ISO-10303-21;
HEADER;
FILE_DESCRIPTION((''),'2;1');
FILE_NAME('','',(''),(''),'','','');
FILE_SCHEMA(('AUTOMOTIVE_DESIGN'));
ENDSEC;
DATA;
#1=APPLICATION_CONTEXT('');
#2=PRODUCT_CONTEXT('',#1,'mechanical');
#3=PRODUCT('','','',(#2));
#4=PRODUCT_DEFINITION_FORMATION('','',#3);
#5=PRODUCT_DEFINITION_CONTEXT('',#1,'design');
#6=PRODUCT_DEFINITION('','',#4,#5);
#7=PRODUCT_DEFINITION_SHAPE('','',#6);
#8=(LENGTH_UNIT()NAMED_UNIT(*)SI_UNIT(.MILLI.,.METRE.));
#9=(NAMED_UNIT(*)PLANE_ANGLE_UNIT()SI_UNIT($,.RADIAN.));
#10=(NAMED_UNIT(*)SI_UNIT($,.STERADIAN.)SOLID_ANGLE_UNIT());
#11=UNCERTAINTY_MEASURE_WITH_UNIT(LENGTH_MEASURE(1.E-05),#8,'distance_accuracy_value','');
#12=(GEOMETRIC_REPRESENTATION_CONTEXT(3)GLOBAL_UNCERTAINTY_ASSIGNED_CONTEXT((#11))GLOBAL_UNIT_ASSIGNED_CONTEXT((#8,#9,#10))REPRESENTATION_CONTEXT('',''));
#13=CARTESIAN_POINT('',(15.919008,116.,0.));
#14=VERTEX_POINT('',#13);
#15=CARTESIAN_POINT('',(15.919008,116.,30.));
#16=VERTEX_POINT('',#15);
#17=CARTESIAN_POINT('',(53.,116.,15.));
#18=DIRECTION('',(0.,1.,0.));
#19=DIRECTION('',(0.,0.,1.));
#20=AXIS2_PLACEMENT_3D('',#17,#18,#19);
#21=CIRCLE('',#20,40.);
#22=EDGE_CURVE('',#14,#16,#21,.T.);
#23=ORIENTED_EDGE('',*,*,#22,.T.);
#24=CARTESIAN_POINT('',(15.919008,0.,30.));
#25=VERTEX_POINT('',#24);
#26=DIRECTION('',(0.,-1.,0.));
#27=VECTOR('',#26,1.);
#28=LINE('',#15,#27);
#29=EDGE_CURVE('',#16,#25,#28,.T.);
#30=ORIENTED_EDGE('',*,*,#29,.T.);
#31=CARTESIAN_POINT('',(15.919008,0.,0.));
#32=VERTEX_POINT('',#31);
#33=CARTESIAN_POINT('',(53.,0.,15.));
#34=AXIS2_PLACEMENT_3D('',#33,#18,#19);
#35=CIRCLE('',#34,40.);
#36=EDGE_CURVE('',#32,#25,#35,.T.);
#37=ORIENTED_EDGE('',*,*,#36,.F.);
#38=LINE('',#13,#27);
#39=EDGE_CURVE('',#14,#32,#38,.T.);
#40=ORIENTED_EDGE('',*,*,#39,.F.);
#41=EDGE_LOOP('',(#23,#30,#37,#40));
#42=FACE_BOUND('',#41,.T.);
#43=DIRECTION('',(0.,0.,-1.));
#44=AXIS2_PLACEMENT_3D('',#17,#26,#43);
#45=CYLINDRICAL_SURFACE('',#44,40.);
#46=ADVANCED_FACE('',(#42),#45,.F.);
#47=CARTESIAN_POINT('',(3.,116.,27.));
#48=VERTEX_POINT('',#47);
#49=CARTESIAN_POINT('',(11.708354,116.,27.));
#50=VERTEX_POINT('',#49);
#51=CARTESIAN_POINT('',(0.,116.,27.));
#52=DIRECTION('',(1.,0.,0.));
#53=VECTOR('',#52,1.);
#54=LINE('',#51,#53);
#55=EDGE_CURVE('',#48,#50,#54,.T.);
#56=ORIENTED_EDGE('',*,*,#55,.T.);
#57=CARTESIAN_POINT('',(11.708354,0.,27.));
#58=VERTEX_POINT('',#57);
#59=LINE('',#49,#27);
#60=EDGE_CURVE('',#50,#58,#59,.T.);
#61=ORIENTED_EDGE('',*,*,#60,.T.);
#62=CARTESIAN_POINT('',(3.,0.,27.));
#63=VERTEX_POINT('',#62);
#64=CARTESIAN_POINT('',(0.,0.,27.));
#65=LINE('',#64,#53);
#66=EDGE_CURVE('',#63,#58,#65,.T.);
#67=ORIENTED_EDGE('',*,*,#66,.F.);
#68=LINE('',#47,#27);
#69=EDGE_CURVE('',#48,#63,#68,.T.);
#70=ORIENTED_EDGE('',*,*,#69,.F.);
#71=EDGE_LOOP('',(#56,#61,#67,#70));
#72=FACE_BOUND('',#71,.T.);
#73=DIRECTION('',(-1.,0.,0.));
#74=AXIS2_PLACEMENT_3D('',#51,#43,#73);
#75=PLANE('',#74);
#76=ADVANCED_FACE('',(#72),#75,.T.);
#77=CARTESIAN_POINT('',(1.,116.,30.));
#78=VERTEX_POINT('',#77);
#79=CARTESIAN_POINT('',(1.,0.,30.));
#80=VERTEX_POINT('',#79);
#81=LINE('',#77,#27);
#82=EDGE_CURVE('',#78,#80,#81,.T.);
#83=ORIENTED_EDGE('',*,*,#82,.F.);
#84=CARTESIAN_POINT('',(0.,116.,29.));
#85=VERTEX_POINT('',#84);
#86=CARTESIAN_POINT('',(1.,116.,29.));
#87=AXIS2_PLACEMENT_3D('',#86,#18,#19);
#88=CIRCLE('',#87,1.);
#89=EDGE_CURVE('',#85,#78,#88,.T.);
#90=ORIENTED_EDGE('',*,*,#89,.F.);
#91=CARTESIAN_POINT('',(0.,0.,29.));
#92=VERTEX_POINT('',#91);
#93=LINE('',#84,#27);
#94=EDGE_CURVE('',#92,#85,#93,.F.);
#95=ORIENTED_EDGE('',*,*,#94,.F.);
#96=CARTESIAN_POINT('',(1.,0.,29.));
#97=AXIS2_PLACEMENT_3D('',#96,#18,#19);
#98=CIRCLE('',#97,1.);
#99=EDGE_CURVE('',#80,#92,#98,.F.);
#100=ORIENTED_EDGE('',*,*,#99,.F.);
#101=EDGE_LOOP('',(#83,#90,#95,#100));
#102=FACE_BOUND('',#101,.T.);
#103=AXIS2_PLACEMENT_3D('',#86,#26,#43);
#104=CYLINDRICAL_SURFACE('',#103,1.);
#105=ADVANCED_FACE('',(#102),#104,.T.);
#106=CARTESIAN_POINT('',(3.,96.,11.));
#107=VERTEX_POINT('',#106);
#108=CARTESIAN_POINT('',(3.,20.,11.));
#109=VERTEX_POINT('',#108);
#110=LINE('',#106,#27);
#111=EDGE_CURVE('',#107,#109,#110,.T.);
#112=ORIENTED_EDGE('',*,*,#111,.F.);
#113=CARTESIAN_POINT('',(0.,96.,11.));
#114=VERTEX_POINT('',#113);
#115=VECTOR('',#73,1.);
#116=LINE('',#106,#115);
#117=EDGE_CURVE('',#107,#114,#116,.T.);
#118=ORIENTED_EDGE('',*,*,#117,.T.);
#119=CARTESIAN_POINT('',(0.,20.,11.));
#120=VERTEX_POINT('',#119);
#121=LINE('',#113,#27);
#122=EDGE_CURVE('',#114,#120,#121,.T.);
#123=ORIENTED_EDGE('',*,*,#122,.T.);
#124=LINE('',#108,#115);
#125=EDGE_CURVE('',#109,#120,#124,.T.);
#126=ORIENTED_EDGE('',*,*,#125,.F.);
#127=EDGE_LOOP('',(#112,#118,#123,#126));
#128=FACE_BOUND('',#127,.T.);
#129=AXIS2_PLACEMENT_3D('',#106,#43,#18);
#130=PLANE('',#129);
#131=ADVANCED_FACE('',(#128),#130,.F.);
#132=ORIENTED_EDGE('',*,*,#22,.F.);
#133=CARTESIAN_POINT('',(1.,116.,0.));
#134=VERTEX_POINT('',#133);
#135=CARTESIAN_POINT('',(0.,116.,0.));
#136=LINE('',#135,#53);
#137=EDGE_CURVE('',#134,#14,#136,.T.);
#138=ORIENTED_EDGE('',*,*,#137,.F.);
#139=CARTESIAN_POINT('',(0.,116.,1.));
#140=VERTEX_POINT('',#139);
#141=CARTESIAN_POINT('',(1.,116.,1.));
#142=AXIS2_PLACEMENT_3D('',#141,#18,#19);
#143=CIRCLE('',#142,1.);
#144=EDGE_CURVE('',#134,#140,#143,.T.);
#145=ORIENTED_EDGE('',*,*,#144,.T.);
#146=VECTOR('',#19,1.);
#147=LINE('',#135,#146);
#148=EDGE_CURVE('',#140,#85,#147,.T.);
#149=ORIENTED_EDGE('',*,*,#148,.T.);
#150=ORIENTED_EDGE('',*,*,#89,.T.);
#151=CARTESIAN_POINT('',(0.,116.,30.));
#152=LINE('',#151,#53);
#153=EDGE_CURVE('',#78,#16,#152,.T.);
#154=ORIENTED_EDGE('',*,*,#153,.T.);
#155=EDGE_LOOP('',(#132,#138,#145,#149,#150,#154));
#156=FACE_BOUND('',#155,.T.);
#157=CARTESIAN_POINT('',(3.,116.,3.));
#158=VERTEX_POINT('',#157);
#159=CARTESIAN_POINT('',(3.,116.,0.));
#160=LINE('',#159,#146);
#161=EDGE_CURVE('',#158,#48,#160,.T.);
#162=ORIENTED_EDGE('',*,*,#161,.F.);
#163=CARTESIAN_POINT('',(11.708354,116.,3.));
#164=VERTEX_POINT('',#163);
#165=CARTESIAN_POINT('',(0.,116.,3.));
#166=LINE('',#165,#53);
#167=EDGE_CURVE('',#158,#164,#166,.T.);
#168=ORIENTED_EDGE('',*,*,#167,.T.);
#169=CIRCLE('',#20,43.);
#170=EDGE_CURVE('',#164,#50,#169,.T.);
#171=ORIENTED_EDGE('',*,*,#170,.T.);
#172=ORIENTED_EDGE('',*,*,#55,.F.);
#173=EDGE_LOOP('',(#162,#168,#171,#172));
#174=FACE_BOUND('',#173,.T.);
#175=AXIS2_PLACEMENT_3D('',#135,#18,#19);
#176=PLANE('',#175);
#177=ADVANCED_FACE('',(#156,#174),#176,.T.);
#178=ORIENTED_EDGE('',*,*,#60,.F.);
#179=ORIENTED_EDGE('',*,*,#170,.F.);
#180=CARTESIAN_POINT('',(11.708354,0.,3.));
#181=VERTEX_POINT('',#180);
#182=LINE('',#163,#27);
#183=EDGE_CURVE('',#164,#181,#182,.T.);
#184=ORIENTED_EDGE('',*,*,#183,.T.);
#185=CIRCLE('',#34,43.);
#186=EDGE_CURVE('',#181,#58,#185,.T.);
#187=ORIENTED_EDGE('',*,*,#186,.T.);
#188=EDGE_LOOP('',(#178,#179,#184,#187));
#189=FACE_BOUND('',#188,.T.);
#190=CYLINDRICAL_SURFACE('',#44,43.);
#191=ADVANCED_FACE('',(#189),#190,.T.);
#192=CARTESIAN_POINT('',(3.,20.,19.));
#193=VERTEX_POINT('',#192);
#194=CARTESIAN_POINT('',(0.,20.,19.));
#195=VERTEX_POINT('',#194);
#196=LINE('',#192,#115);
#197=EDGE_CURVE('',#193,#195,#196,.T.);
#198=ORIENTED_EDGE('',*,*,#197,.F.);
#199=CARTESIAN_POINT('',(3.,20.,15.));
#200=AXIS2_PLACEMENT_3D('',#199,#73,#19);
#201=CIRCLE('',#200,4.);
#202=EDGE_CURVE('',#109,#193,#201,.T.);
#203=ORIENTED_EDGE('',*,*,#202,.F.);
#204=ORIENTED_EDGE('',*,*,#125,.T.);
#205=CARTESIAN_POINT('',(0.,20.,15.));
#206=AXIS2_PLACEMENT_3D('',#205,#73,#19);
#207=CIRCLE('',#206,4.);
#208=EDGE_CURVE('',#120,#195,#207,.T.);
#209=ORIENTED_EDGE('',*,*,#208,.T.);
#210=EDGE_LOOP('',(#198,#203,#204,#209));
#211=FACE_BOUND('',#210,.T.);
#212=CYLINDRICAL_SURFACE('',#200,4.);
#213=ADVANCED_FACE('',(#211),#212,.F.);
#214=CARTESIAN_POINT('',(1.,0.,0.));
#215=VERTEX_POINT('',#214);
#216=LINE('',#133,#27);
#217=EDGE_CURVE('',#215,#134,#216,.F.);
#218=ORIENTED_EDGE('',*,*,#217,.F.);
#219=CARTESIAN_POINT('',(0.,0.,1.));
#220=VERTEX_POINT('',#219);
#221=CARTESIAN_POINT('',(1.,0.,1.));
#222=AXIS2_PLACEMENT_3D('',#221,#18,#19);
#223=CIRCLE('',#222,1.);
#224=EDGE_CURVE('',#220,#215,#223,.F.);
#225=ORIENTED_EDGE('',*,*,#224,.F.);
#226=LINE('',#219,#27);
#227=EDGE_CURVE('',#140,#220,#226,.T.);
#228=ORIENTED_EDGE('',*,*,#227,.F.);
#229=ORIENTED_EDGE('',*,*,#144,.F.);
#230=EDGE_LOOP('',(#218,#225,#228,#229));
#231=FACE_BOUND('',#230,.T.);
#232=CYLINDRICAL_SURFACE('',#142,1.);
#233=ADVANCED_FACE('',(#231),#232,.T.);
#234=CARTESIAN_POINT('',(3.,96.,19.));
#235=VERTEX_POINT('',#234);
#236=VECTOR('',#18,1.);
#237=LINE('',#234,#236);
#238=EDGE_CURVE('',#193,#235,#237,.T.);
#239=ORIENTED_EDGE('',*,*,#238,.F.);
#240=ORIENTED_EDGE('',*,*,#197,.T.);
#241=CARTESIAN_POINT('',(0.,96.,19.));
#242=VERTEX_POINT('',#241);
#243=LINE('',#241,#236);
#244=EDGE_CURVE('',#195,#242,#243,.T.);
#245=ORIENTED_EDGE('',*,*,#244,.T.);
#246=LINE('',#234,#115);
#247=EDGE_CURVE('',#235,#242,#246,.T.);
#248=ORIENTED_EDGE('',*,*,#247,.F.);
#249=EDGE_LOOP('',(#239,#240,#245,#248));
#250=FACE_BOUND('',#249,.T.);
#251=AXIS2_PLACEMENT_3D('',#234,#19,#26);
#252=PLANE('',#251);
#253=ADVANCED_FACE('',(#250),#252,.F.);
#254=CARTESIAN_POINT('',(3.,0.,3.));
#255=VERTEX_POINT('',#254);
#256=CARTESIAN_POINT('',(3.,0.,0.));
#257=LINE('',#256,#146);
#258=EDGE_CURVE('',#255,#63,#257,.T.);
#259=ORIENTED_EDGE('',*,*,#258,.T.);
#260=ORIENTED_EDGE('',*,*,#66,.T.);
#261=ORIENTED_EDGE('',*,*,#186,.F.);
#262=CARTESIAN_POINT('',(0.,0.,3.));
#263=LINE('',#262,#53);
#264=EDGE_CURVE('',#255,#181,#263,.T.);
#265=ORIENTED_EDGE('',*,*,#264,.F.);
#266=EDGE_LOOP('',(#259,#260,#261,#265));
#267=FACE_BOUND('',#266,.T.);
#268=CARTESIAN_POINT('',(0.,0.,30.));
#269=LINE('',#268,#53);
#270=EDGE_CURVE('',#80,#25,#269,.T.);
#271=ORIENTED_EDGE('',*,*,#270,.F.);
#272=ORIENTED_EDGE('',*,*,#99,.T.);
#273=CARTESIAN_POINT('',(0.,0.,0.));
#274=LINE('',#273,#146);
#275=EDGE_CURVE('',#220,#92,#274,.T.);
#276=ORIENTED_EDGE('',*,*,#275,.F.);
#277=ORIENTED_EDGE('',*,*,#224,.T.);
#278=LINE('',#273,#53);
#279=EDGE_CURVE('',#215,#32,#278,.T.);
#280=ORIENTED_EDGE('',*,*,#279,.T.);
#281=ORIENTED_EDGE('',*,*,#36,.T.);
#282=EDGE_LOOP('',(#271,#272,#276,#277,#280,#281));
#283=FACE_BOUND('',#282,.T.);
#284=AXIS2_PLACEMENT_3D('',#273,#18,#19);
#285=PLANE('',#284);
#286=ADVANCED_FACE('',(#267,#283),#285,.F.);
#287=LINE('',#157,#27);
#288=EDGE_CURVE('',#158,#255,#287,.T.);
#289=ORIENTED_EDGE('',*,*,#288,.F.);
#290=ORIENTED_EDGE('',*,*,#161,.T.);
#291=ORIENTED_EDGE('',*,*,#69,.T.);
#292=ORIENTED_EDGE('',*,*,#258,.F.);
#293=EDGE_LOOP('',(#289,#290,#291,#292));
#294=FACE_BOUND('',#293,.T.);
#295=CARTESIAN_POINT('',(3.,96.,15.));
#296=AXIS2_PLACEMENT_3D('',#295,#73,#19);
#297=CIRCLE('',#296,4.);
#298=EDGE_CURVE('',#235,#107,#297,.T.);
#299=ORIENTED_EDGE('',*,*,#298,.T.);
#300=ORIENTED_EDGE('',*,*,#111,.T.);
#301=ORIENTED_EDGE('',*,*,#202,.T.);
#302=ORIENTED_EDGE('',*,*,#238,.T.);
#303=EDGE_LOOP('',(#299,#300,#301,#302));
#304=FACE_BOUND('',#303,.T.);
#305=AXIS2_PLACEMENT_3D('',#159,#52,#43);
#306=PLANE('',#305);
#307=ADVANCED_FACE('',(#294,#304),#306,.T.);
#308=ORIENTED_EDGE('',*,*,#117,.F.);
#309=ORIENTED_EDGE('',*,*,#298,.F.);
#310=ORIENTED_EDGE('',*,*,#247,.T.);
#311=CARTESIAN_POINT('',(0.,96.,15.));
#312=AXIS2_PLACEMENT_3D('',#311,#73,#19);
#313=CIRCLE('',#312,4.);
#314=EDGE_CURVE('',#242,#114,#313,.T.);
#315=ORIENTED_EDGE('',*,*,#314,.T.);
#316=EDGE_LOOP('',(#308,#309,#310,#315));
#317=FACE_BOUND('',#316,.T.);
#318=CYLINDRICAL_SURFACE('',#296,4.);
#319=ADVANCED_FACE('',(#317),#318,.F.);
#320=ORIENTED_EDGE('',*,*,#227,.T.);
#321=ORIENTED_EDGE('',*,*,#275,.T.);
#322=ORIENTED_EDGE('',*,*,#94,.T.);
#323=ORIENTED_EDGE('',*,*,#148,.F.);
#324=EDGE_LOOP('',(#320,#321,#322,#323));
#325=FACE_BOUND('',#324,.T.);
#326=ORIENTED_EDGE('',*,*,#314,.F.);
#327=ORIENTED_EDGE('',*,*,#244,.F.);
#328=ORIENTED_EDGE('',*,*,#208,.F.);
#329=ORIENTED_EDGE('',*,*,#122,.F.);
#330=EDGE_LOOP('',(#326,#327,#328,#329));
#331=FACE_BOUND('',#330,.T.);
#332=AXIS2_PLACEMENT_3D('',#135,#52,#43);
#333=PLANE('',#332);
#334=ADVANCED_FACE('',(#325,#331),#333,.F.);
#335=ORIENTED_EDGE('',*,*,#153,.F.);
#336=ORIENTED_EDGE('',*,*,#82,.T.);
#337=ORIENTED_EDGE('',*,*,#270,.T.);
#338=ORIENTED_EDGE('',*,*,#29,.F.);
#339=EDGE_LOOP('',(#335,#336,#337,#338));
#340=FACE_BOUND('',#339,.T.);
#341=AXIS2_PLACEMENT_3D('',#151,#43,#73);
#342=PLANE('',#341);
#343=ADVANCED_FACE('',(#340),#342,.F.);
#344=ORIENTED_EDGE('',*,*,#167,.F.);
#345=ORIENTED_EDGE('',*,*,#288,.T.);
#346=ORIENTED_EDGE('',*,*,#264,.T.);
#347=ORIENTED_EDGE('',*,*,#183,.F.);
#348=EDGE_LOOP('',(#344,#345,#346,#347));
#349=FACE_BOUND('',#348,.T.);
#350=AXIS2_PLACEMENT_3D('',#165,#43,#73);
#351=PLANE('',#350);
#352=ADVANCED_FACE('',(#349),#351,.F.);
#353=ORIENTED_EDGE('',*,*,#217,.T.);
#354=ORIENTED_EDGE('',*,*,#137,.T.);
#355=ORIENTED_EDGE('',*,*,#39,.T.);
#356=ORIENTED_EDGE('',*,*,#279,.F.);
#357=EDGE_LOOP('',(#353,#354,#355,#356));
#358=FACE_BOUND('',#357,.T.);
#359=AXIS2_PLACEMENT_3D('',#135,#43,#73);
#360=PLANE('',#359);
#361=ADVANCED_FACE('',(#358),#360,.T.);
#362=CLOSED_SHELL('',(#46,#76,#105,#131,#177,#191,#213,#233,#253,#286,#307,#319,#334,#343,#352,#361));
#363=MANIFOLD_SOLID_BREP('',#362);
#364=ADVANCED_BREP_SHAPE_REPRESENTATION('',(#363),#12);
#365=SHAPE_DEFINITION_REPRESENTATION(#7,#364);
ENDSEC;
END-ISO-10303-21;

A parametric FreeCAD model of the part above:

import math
import FreeCAD as App
import Part
import Sketcher
from FreeCAD import Vector
Q = App.Units.Quantity


def edges_at(feature, points):
    """Names of the edges that pass closest to the given points."""
    edges = feature.Shape.Edges
    near = lambda p: min(range(len(edges)), key=lambda i: edges[i].distToShape(Part.Vertex(*p))[0])
    return sorted({f"Edge{near(p) + 1}" for p in points})


def faces_at(feature, points):
    """Names of the faces that lie closest to the given points."""
    faces = feature.Shape.Faces
    near = lambda p: min(range(len(faces)), key=lambda i: faces[i].distToShape(Part.Vertex(*p))[0])
    return sorted({f"Face{near(p) + 1}" for p in points})

doc = App.newDocument("Part")
body = doc.addObject("PartDesign::Body", "Body")

sketch1 = doc.addObject("Sketcher::SketchObject", "Sketch")
body.addObject(sketch1)
sketch1.AttachmentSupport = (doc.XZ_Plane, [""])
sketch1.MapMode = "FlatFace"
sketch1.addGeometry([
    Part.ArcOfCircle(Part.Circle(Vector(53, 15, 0), Vector(0, 0, 1), 40), math.radians(158), math.radians(202)),
    Part.LineSegment(Vector(16, 0, 0), Vector(0, 0, 0)),
    Part.LineSegment(Vector(0, 0, 0), Vector(0, 30, 0)),
    Part.LineSegment(Vector(0, 30, 0), Vector(16, 30, 0)),
], False)
sketch1.addConstraint([
    Sketcher.Constraint("Coincident", 0, 2, 1, 1),
    Sketcher.Constraint("Coincident", 1, 2, 2, 1),
    Sketcher.Constraint("Coincident", 2, 2, 3, 1),
    Sketcher.Constraint("Coincident", 3, 2, 0, 1),
    Sketcher.Constraint("Horizontal", 1),
    Sketcher.Constraint("Vertical", 2),
    Sketcher.Constraint("Horizontal", 3),
    Sketcher.Constraint("Coincident", 1, 2, -1, 1),
    Sketcher.Constraint("Vertical", 0, 2, 3, 2),
    Sketcher.Constraint("Radius", 0, Q("40 mm")),
    Sketcher.Constraint("DistanceY", 2, 1, 2, 2, Q("30 mm")),
    Sketcher.Constraint("DistanceX", -1, 1, 0, 3, Q("53 mm")),
])
pad1 = doc.addObject("PartDesign::Pad", "Pad")
body.addObject(pad1)
pad1.Profile = sketch1
pad1.Length = 116
pad1.Reversed = True
doc.recompute()

thickness = doc.addObject("PartDesign::Thickness", "Thickness")
body.addObject(thickness)
thickness.Base = (pad1, faces_at(pad1, [(7.96, 116, 15), (7.96, 0, 15)]))
thickness.Value = 3
thickness.Reversed = True
thickness.Join = "Intersection"
doc.recompute()

fillet = doc.addObject("PartDesign::Fillet", "Fillet")
body.addObject(fillet)
fillet.Base = (thickness, edges_at(thickness, [(0, 58, 30), (0, 58, 0)]))
fillet.Radius = 1

sketch2 = doc.addObject("Sketcher::SketchObject", "Sketch001")
body.addObject(sketch2)
sketch2.AttachmentSupport = (doc.YZ_Plane, [""])
sketch2.MapMode = "FlatFace"
sketch2.addGeometry([
    Part.LineSegment(Vector(20, 19, 0), Vector(96, 19, 0)),
    Part.ArcOfCircle(Part.Circle(Vector(96, 15, 0), Vector(0, 0, 1), 4), math.radians(-90), math.radians(90)),
    Part.LineSegment(Vector(96, 11, 0), Vector(20, 11, 0)),
    Part.ArcOfCircle(Part.Circle(Vector(20, 15, 0), Vector(0, 0, 1), 4), math.radians(90), math.radians(270)),
], False)
sketch2.addConstraint([
    Sketcher.Constraint("Tangent", 0, 2, 1, 2),
    Sketcher.Constraint("Tangent", 1, 1, 2, 1),
    Sketcher.Constraint("Tangent", 2, 2, 3, 2),
    Sketcher.Constraint("Tangent", 3, 1, 0, 1),
    Sketcher.Constraint("Horizontal", 0),
    Sketcher.Constraint("Horizontal", 2),
    Sketcher.Constraint("Radius", 1, Q("4 mm")),
    Sketcher.Constraint("DistanceX", 0, 1, 0, 2, Q("76 mm")),
    Sketcher.Constraint("DistanceX", -1, 1, 1, 3, Q("96 mm")),
    Sketcher.Constraint("DistanceY", -1, 1, 1, 3, Q("15 mm")),
])
pocket1 = doc.addObject("PartDesign::Pocket", "Pocket")
body.addObject(pocket1)
pocket1.Profile = sketch2
pocket1.Length = 3
pocket1.Reversed = True

doc.recompute()
